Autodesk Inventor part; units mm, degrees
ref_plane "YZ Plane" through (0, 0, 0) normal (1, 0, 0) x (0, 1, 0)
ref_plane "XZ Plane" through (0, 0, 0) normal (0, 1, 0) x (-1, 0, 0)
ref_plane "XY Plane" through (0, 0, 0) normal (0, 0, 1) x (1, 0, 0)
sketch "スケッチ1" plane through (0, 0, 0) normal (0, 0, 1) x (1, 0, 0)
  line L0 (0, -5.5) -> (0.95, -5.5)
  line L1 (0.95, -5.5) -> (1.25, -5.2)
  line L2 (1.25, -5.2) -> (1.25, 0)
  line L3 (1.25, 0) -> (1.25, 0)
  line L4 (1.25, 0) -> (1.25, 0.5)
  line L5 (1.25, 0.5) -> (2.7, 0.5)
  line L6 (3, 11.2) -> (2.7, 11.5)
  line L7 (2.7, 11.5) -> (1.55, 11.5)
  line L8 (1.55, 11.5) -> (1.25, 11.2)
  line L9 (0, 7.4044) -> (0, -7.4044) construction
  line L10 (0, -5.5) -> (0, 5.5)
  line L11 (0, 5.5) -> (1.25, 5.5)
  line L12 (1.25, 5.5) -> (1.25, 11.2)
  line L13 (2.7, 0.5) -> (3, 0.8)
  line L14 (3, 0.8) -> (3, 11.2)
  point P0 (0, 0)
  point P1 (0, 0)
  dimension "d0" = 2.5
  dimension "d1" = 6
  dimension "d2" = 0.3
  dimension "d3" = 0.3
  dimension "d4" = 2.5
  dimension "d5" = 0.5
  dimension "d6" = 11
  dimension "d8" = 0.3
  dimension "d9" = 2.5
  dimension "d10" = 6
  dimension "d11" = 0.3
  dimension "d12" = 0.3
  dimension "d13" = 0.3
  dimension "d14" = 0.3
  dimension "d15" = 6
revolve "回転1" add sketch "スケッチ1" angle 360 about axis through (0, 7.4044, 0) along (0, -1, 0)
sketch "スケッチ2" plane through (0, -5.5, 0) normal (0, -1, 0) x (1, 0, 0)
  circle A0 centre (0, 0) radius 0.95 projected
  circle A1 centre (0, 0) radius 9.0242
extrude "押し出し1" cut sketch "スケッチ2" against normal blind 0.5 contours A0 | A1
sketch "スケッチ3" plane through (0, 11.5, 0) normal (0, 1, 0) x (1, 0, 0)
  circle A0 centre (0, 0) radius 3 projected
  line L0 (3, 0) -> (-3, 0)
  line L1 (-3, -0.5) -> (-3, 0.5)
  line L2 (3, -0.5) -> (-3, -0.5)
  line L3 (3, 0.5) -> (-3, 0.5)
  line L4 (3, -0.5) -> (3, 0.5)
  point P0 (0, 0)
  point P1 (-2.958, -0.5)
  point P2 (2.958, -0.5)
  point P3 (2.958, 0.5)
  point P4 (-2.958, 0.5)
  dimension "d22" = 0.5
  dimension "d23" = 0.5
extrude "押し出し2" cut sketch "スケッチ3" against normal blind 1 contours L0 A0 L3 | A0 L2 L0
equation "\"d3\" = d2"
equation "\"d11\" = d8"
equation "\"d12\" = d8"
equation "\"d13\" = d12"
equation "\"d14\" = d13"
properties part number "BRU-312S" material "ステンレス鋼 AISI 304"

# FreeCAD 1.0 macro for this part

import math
import FreeCAD as App
import Part
import Sketcher

V = App.Vector

doc = App.newDocument("Part")
body = doc.addObject("PartDesign::Body", "Body")

# Sketch on XY plane
sketch1 = doc.addObject("Sketcher::SketchObject", "Sketch")
body.addObject(sketch1)
sketch1.AttachmentSupport = (doc.XY_Plane, [""])
sketch1.MapMode = "FlatFace"
sketch1.addGeometry([
    Part.LineSegment(V(0, 5.5, 0), V(0, -5.5, 0)),  # 0
    Part.LineSegment(V(0, -5.5, 0), V(0.95, -5.5, 0)),  # 1
    Part.LineSegment(V(0.95, -5.5, 0), V(1.25, -5.2, 0)),  # 2
    Part.LineSegment(V(1.25, -5.2, 0), V(1.25, 0.5, 0)),  # 3
    Part.LineSegment(V(1.25, 0.5, 0), V(2.7, 0.5, 0)),  # 4
    Part.LineSegment(V(2.7, 0.5, 0), V(3, 0.8, 0)),  # 5
    Part.LineSegment(V(3, 0.8, 0), V(3, 11.2, 0)),  # 6
    Part.LineSegment(V(3, 11.2, 0), V(2.7, 11.5, 0)),  # 7
    Part.LineSegment(V(2.7, 11.5, 0), V(1.55, 11.5, 0)),  # 8
    Part.LineSegment(V(1.55, 11.5, 0), V(1.25, 11.2, 0)),  # 9
    Part.LineSegment(V(1.25, 11.2, 0), V(1.25, 5.5, 0)),  # 10
    Part.LineSegment(V(1.25, 5.5, 0), V(0, 5.5, 0)),  # 11
], False)
sketch1.addConstraint([
    Sketcher.Constraint("Coincident", 0, 2, 1, 1),
    Sketcher.Constraint("Coincident", 1, 2, 2, 1),
    Sketcher.Constraint("Coincident", 2, 2, 3, 1),
    Sketcher.Constraint("Coincident", 3, 2, 4, 1),
    Sketcher.Constraint("Coincident", 4, 2, 5, 1),
    Sketcher.Constraint("Coincident", 5, 2, 6, 1),
    Sketcher.Constraint("Coincident", 6, 2, 7, 1),
    Sketcher.Constraint("Coincident", 7, 2, 8, 1),
    Sketcher.Constraint("Coincident", 8, 2, 9, 1),
    Sketcher.Constraint("Coincident", 9, 2, 10, 1),
    Sketcher.Constraint("Coincident", 10, 2, 11, 1),
    Sketcher.Constraint("Coincident", 11, 2, 0, 1),
    Sketcher.Constraint("Vertical", 0),
    Sketcher.Constraint("Horizontal", 1),
    Sketcher.Constraint("Vertical", 3),
    Sketcher.Constraint("Horizontal", 4),
    Sketcher.Constraint("Vertical", 6),
    Sketcher.Constraint("Horizontal", 8),
    Sketcher.Constraint("Vertical", 10),
    Sketcher.Constraint("Horizontal", 11),
    Sketcher.Constraint("Symmetric", 0, 2, 11, 2, -1, 1),
    Sketcher.Constraint("Parallel", 2, 5),
    Sketcher.Constraint("Perpendicular", 5, 7),
    Sketcher.Constraint("Perpendicular", 7, 9),
    Sketcher.Constraint("Horizontal", 6, 2, 9, 2),
    Sketcher.Constraint("Vertical", 4, 2, 7, 2),
    Sketcher.Constraint("Vertical", 3, 2, 9, 2),
    Sketcher.Constraint("Equal", 3, 10),
    Sketcher.Constraint("Equal", 2, 5),
    Sketcher.Constraint("Equal", 5, 7),
    Sketcher.Constraint("DistanceY", 0, 2, 0, 1, 11.0),
    Sketcher.Constraint("DistanceY", 1, 2, 3, 2, 6.0),
    Sketcher.Constraint("DistanceX", 1, 2, 2, 2, 0.3),
    Sketcher.Constraint("DistanceX", -1, 1, 5, 2, 3.0),
    Sketcher.Constraint("DistanceX", 1, 1, 1, 2, 0.95),
])
revolution = doc.addObject("PartDesign::Revolution", "Revolution")
body.addObject(revolution)
revolution.Profile = sketch1
revolution.ReferenceAxis = (sketch1, ["V_Axis"])
revolution.Angle = 360

# Sketch on XZ plane
sketch2 = doc.addObject("Sketcher::SketchObject", "Sketch001")
body.addObject(sketch2)
sketch2.AttachmentSupport = (doc.XZ_Plane, [""])
sketch2.MapMode = "FlatFace"
sketch2.AttachmentOffset = App.Placement(V(0, 0, 5.5), App.Rotation())
sketch2.addGeometry(Part.Circle(V(0, 0, 0), V(0, 0, 1), 9), False)
sketch2.addConstraint([
    Sketcher.Constraint("Coincident", 0, 3, -1, 1),
    Sketcher.Constraint("Diameter", 0, 18.0484),
])
pocket1 = doc.addObject("PartDesign::Pocket", "Pocket")
body.addObject(pocket1)
pocket1.Profile = sketch2
pocket1.Length = 0.5

# Sketch on XZ plane
sketch3 = doc.addObject("Sketcher::SketchObject", "Sketch002")
body.addObject(sketch3)
sketch3.AttachmentSupport = (doc.XZ_Plane, [""])
sketch3.MapMode = "FlatFace"
sketch3.AttachmentOffset = App.Placement(V(0, 0, -11.5), App.Rotation())
sketch3.addGeometry([
    Part.ArcOfCircle(Part.Circle(V(0, 0, 0), V(0, 0, 1), 3), math.radians(170.41), math.radians(189.59)),
    Part.LineSegment(V(-3, 0.5, 0), V(3, 0.5, 0)),
    Part.ArcOfCircle(Part.Circle(V(0, 0, 0), V(0, 0, 1), 3), math.radians(-9.59), math.radians(9.59)),
    Part.LineSegment(V(3, -0.5, 0), V(-3, -0.5, 0)),
], False)
sketch3.addConstraint([
    Sketcher.Constraint("Coincident", 0, 1, 1, 1),
    Sketcher.Constraint("Coincident", 1, 2, 2, 2),
    Sketcher.Constraint("Coincident", 2, 1, 3, 1),
    Sketcher.Constraint("Coincident", 3, 2, 0, 2),
    Sketcher.Constraint("Horizontal", 1),
    Sketcher.Constraint("Horizontal", 3),
    Sketcher.Constraint("Coincident", 0, 3, -1, 1),
    Sketcher.Constraint("Coincident", 2, 3, -1, 1),
    Sketcher.Constraint("Equal", 0, 2),
    Sketcher.Constraint("Vertical", 1, 2, 2, 1),
    Sketcher.Constraint("Radius", 0, 3.0),
    Sketcher.Constraint("DistanceY", -1, 1, 0, 1, 0.5),
])
pocket2 = doc.addObject("PartDesign::Pocket", "Pocket001")
body.addObject(pocket2)
pocket2.Profile = sketch3
pocket2.Length = 1
pocket2.Reversed = True

doc.recompute()
